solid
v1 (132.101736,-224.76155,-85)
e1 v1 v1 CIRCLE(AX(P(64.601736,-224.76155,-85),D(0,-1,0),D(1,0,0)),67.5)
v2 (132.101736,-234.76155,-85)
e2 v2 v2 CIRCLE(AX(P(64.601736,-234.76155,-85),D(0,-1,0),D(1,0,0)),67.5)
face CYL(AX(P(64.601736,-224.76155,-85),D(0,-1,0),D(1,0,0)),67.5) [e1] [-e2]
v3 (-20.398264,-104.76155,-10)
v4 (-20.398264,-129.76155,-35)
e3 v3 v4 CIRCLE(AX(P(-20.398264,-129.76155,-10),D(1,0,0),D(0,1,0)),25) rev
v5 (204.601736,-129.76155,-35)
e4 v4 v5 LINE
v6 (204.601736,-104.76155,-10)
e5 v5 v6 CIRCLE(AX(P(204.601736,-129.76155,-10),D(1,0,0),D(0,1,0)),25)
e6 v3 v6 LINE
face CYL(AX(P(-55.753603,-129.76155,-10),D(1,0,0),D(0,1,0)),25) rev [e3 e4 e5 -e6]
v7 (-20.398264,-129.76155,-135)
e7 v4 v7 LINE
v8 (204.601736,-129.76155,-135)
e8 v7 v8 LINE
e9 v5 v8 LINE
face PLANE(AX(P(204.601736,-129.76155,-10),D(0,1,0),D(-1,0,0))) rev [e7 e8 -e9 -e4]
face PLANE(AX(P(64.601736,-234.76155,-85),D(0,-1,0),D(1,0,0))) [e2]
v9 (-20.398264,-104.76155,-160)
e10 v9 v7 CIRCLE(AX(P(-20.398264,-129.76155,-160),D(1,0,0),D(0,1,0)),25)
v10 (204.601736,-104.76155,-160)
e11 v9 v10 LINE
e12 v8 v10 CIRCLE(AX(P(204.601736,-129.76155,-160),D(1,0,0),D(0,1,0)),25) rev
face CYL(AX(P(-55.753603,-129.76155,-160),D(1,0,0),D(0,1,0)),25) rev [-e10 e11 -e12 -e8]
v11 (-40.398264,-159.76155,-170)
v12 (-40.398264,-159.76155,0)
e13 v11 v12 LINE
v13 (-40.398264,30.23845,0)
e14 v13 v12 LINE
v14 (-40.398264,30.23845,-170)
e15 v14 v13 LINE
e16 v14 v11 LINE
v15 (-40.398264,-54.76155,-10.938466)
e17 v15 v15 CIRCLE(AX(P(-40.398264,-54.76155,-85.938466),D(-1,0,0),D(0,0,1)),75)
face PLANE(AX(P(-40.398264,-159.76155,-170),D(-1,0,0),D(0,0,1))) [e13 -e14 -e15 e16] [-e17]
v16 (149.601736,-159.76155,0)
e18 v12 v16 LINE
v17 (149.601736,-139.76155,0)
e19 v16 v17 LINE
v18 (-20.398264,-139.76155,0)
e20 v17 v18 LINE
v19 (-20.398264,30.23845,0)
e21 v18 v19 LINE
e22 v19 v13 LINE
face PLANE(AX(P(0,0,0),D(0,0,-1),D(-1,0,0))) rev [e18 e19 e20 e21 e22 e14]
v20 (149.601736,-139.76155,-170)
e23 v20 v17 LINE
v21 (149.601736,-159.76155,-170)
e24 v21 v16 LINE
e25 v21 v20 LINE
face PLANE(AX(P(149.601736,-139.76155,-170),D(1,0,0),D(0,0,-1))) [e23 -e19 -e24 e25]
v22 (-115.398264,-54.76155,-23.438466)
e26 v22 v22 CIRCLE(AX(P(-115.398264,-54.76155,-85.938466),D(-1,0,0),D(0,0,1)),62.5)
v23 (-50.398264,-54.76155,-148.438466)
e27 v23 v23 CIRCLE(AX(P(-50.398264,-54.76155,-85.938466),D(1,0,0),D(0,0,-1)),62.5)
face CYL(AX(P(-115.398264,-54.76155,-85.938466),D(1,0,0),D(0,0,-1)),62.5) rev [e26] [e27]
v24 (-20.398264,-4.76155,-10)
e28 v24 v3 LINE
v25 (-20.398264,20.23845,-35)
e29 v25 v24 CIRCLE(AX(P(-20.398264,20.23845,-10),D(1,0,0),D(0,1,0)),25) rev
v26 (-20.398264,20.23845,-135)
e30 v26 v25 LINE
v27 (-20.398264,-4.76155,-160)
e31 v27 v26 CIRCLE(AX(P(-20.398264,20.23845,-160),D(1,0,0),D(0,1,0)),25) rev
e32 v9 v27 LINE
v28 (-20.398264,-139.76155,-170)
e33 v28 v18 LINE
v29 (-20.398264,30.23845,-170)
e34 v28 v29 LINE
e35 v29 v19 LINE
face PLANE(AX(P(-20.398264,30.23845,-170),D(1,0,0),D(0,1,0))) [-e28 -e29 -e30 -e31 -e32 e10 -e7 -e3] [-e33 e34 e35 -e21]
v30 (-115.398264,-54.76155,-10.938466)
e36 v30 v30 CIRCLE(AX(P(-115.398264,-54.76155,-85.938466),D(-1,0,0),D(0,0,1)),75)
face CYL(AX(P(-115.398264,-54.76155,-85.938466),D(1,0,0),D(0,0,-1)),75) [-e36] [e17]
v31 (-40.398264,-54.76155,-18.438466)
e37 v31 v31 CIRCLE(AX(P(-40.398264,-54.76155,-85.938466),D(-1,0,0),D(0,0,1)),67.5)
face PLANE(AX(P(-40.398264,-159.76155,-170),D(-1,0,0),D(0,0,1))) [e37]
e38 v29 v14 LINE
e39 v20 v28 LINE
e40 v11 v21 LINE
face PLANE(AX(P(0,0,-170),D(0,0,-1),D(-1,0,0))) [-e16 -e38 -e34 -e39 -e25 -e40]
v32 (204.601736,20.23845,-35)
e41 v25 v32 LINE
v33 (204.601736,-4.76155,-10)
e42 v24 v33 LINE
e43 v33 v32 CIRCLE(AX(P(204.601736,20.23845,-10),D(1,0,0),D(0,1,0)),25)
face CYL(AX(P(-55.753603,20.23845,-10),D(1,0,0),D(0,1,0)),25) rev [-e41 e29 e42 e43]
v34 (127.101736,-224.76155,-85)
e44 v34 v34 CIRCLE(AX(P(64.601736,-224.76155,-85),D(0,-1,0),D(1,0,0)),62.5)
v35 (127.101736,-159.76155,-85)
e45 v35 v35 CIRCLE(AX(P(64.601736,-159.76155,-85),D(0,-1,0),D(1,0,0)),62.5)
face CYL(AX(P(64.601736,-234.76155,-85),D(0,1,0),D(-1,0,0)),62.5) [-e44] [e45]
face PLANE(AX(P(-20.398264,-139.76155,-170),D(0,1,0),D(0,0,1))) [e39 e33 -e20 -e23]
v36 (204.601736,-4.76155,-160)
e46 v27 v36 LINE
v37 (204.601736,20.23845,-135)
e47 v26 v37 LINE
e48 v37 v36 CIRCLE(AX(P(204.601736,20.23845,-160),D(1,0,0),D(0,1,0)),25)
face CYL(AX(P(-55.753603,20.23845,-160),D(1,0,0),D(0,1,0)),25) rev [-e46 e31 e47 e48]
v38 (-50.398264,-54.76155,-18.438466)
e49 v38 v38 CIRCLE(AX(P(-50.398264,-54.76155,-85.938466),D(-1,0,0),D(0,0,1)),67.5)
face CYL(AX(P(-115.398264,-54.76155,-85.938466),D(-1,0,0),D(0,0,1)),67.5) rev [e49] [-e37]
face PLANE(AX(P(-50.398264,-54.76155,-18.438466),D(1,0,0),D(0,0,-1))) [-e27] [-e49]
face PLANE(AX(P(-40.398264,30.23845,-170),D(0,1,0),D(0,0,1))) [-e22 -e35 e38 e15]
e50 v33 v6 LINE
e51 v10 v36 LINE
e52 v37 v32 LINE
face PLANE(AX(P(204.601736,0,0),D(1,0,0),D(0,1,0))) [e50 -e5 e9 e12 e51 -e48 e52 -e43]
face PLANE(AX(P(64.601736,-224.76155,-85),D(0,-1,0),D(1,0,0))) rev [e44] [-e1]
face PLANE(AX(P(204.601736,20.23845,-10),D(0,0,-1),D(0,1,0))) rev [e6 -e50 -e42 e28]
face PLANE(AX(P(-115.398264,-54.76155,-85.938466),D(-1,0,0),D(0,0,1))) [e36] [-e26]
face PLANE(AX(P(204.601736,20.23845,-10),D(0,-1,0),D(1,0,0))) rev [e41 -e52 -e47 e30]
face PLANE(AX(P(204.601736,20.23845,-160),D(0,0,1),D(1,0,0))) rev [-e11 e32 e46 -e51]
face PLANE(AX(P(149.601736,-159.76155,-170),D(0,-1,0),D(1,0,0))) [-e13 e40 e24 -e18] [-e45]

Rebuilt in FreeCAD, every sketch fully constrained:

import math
import FreeCAD as App
import Part
import Sketcher
Q = App.Units.Quantity

doc = App.newDocument("Part")
body = doc.addObject("PartDesign::Body", "Body")

# Sketch on XY plane
sketch1 = doc.addObject("Sketcher::SketchObject", "Sketch")
body.addObject(sketch1)
sketch1.AttachmentSupport = (doc.XY_Plane, [""])
sketch1.MapMode = "FlatFace"
sketch1.addGeometry([
    Part.LineSegment(App.Vector(-20, 30, 0), App.Vector(-40, 30, 0)),  # 0
    Part.LineSegment(App.Vector(-40, 30, 0), App.Vector(-40, -160, 0)),  # 1
    Part.LineSegment(App.Vector(-40, -160, 0), App.Vector(150, -160, 0)),  # 2
    Part.LineSegment(App.Vector(150, -160, 0), App.Vector(150, -140, 0)),  # 3
    Part.LineSegment(App.Vector(150, -140, 0), App.Vector(-20, -140, 0)),  # 4
    Part.LineSegment(App.Vector(-20, -140, 0), App.Vector(-20, 30, 0)),  # 5
], False)
sketch1.addConstraint([
    Sketcher.Constraint("Coincident", 0, 2, 1, 1),
    Sketcher.Constraint("Coincident", 1, 2, 2, 1),
    Sketcher.Constraint("Coincident", 2, 2, 3, 1),
    Sketcher.Constraint("Coincident", 3, 2, 4, 1),
    Sketcher.Constraint("Coincident", 4, 2, 5, 1),
    Sketcher.Constraint("Coincident", 5, 2, 0, 1),
    Sketcher.Constraint("Horizontal", 0),
    Sketcher.Constraint("Vertical", 1),
    Sketcher.Constraint("Horizontal", 2),
    Sketcher.Constraint("Vertical", 3),
    Sketcher.Constraint("Horizontal", 4),
    Sketcher.Constraint("Vertical", 5),
    Sketcher.Constraint("Equal", 2, 1),
    Sketcher.Constraint("Equal", 0, 3),
    Sketcher.Constraint("DistanceX", 0, 2, 0, 1, Q("20 mm")),
    Sketcher.Constraint("DistanceX", 2, 1, 2, 2, Q("190 mm")),
    Sketcher.Constraint("DistanceY", -1, 1, 0, 2, Q("30.23845 mm")),
    Sketcher.Constraint("DistanceX", 0, 2, -1, 1, Q("40.398264 mm")),
])
pad1 = doc.addObject("PartDesign::Pad", "Pad")
body.addObject(pad1)
pad1.Profile = sketch1
pad1.Length = 170
pad1.Reversed = True

# Sketch on YZ plane
sketch2 = doc.addObject("Sketcher::SketchObject", "Sketch001")
body.addObject(sketch2)
sketch2.AttachmentSupport = (doc.YZ_Plane, [""])
sketch2.MapMode = "FlatFace"
sketch2.AttachmentOffset = App.Placement(App.Vector(0, 0, -40.398264), App.Rotation())
sketch2.addGeometry([
    Part.Circle(App.Vector(-55, -86, 0), App.Vector(0, 0, 1), 75),
    Part.Circle(App.Vector(-55, -86, 0), App.Vector(0, 0, 1), 62),
], False)
sketch2.addConstraint([
    Sketcher.Constraint("Coincident", 1, 3, 0, 3),
    Sketcher.Constraint("Diameter", 0, Q("150 mm")),
    Sketcher.Constraint("Diameter", 1, Q("125 mm")),
    Sketcher.Constraint("DistanceX", 0, 3, -1, 1, Q("54.76155 mm")),
    Sketcher.Constraint("DistanceY", 0, 3, -1, 1, Q("85.938466 mm")),
])
pad2 = doc.addObject("PartDesign::Pad", "Pad001")
body.addObject(pad2)
pad2.Profile = sketch2
pad2.Length = 75
pad2.Reversed = True

# Sketch on YZ plane
sketch3 = doc.addObject("Sketcher::SketchObject", "Sketch002")
body.addObject(sketch3)
sketch3.AttachmentSupport = (doc.YZ_Plane, [""])
sketch3.MapMode = "FlatFace"
sketch3.AttachmentOffset = App.Placement(App.Vector(0, 0, -20.398264), App.Rotation())
sketch3.addGeometry([
    Part.LineSegment(App.Vector(20, -10, 0), App.Vector(-130, -10, 0)),
    Part.LineSegment(App.Vector(-130, -10, 0), App.Vector(-130, -160, 0)),
    Part.LineSegment(App.Vector(-130, -160, 0), App.Vector(20, -160, 0)),
    Part.LineSegment(App.Vector(20, -160, 0), App.Vector(20, -10, 0)),
], False)
sketch3.addConstraint([
    Sketcher.Constraint("Coincident", 0, 2, 1, 1),
    Sketcher.Constraint("Coincident", 1, 2, 2, 1),
    Sketcher.Constraint("Coincident", 2, 2, 3, 1),
    Sketcher.Constraint("Coincident", 3, 2, 0, 1),
    Sketcher.Constraint("Horizontal", 0),
    Sketcher.Constraint("Vertical", 1),
    Sketcher.Constraint("Horizontal", 2),
    Sketcher.Constraint("Vertical", 3),
    Sketcher.Constraint("Equal", 2, 1),
    Sketcher.Constraint("DistanceX", 0, 2, 0, 1, Q("150 mm")),
    Sketcher.Constraint("DistanceY", 0, 2, -1, 1, Q("10 mm")),
    Sketcher.Constraint("DistanceX", 0, 2, -1, 1, Q("129.76155 mm")),
])
pad3 = doc.addObject("PartDesign::Pad", "Pad002")
body.addObject(pad3)
pad3.Profile = sketch3
pad3.Length = 225

# Sketch on YZ plane
sketch4 = doc.addObject("Sketcher::SketchObject", "Sketch003")
body.addObject(sketch4)
sketch4.AttachmentSupport = (doc.YZ_Plane, [""])
sketch4.MapMode = "FlatFace"
sketch4.AttachmentOffset = App.Placement(App.Vector(0, 0, 204.601736), App.Rotation())
sketch4.addGeometry([
    Part.LineSegment(App.Vector(20, -35, 0), App.Vector(20, -10, 0)),  # 0
    Part.LineSegment(App.Vector(20, -10, 0), App.Vector(-5, -10, 0)),  # 1
    Part.ArcOfCircle(Part.Circle(App.Vector(20, -10, 0), App.Vector(0, 0, 1), 25), math.radians(180), math.radians(270)),  # 2
    Part.ArcOfCircle(Part.Circle(App.Vector(-130, -10, 0), App.Vector(0, 0, 1), 25), math.radians(-90), math.radians(0)),  # 3
    Part.LineSegment(App.Vector(-105, -10, 0), App.Vector(-130, -10, 0)),  # 4
    Part.LineSegment(App.Vector(-130, -10, 0), App.Vector(-130, -35, 0)),  # 5
    Part.ArcOfCircle(Part.Circle(App.Vector(-130, -160, 0), App.Vector(0, 0, 1), 25), math.radians(0), math.radians(90)),  # 6
    Part.LineSegment(App.Vector(-130, -135, 0), App.Vector(-130, -160, 0)),  # 7
    Part.LineSegment(App.Vector(-130, -160, 0), App.Vector(-105, -160, 0)),  # 8
    Part.LineSegment(App.Vector(20, -160, 0), App.Vector(20, -135, 0)),  # 9
    Part.ArcOfCircle(Part.Circle(App.Vector(20, -160, 0), App.Vector(0, 0, 1), 25), math.radians(90), math.radians(180)),  # 10
    Part.LineSegment(App.Vector(-5, -160, 0), App.Vector(20, -160, 0)),  # 11
], False)
sketch4.addConstraint([
    Sketcher.Constraint("Coincident", 0, 2, 1, 1),
    Sketcher.Constraint("Coincident", 1, 2, 2, 1),
    Sketcher.Constraint("Coincident", 2, 2, 0, 1),
    Sketcher.Constraint("Coincident", 3, 2, 4, 1),
    Sketcher.Constraint("Coincident", 4, 2, 5, 1),
    Sketcher.Constraint("Coincident", 5, 2, 3, 1),
    Sketcher.Constraint("Coincident", 6, 2, 7, 1),
    Sketcher.Constraint("Coincident", 7, 2, 8, 1),
    Sketcher.Constraint("Coincident", 8, 2, 6, 1),
    Sketcher.Constraint("Coincident", 9, 2, 10, 1),
    Sketcher.Constraint("Coincident", 10, 2, 11, 1),
    Sketcher.Constraint("Coincident", 11, 2, 9, 1),
    Sketcher.Constraint("Vertical", 0),
    Sketcher.Constraint("Horizontal", 1),
    Sketcher.Constraint("Horizontal", 4),
    Sketcher.Constraint("Vertical", 5),
    Sketcher.Constraint("Vertical", 7),
    Sketcher.Constraint("Horizontal", 8),
    Sketcher.Constraint("Vertical", 9),
    Sketcher.Constraint("Horizontal", 11),
    Sketcher.Constraint("Coincident", 0, 2, 2, 3),
    Sketcher.Constraint("Coincident", 4, 2, 3, 3),
    Sketcher.Constraint("Coincident", 7, 2, 6, 3),
    Sketcher.Constraint("Coincident", 11, 2, 10, 3),
    Sketcher.Constraint("Equal", 2, 3),
    Sketcher.Constraint("Equal", 3, 6),
    Sketcher.Constraint("Equal", 6, 10),
    Sketcher.Constraint("Horizontal", 2, 3, 3, 3),
    Sketcher.Constraint("Horizontal", 6, 3, 10, 3),
    Sketcher.Constraint("Vertical", 3, 3, 6, 3),
    Sketcher.Constraint("Vertical", 2, 3, 10, 3),
    Sketcher.Constraint("Radius", 2, Q("25 mm")),
    Sketcher.Constraint("DistanceY", 2, 3, -1, 1, Q("10 mm")),
    Sketcher.Constraint("DistanceY", 6, 3, -1, 1, Q("160 mm")),
    Sketcher.Constraint("DistanceX", 3, 3, 2, 3, Q("150 mm")),
    Sketcher.Constraint("DistanceX", -1, 1, 2, 3, Q("20.23845 mm")),
])
pocket1 = doc.addObject("PartDesign::Pocket", "Pocket")
body.addObject(pocket1)
pocket1.Profile = sketch4
pocket1.Length = 225

# Sketch on XZ plane
sketch5 = doc.addObject("Sketcher::SketchObject", "Sketch004")
body.addObject(sketch5)
sketch5.AttachmentSupport = (doc.XZ_Plane, [""])
sketch5.MapMode = "FlatFace"
sketch5.AttachmentOffset = App.Placement(App.Vector(0, 0, 159.76155), App.Rotation())
sketch5.addGeometry(Part.Circle(App.Vector(65, -85, 0), App.Vector(0, 0, 1), 62), False)
sketch5.addConstraint([
    Sketcher.Constraint("Diameter", 0, Q("125 mm")),
    Sketcher.Constraint("DistanceY", 0, 3, -1, 1, Q("85 mm")),
    Sketcher.Constraint("DistanceX", -1, 1, 0, 3, Q("64.601736 mm")),
])
pad4 = doc.addObject("PartDesign::Pad", "Pad003")
body.addObject(pad4)
pad4.Profile = sketch5
pad4.Length = 75

# Sketch on XZ plane
sketch6 = doc.addObject("Sketcher::SketchObject", "Sketch005")
body.addObject(sketch6)
sketch6.AttachmentSupport = (doc.XZ_Plane, [""])
sketch6.MapMode = "FlatFace"
sketch6.AttachmentOffset = App.Placement(App.Vector(0, 0, 224.76155), App.Rotation())
sketch6.addGeometry([
    Part.Circle(App.Vector(65, -85, 0), App.Vector(0, 0, 1), 68),
    Part.Circle(App.Vector(65, -85, 0), App.Vector(0, 0, 1), 62),
], False)
sketch6.addConstraint([
    Sketcher.Constraint("Coincident", 1, 3, 0, 3),
    Sketcher.Constraint("Diameter", 0, Q("135 mm")),
    Sketcher.Constraint("Diameter", 1, Q("125 mm")),
    Sketcher.Constraint("DistanceY", 0, 3, -1, 1, Q("85 mm")),
    Sketcher.Constraint("DistanceX", -1, 1, 0, 3, Q("64.601736 mm")),
])
pad5 = doc.addObject("PartDesign::Pad", "Pad004")
body.addObject(pad5)
pad5.Profile = sketch6
pad5.Length = 10

# Sketch on XZ plane
sketch7 = doc.addObject("Sketcher::SketchObject", "Sketch006")
body.addObject(sketch7)
sketch7.AttachmentSupport = (doc.XZ_Plane, [""])
sketch7.MapMode = "FlatFace"
sketch7.AttachmentOffset = App.Placement(App.Vector(0, 0, 54.76155), App.Rotation())
sketch7.addGeometry([
    Part.LineSegment(App.Vector(-50, -18, 0), App.Vector(-50, -31, 0)),
    Part.LineSegment(App.Vector(-50, -31, 0), App.Vector(-40, -31, 0)),
    Part.LineSegment(App.Vector(-40, -31, 0), App.Vector(-40, -18, 0)),
    Part.LineSegment(App.Vector(-40, -18, 0), App.Vector(-50, -18, 0)),
], False)
sketch7.addGeometry(Part.LineSegment(App.Vector(-50, -86, 0), App.Vector(-40, -86, 0)), True)  # axis
sketch7.addConstraint([
    Sketcher.Constraint("Coincident", 0, 2, 1, 1),
    Sketcher.Constraint("Coincident", 1, 2, 2, 1),
    Sketcher.Constraint("Coincident", 2, 2, 3, 1),
    Sketcher.Constraint("Coincident", 3, 2, 0, 1),
    Sketcher.Constraint("Vertical", 0),
    Sketcher.Constraint("Horizontal", 1),
    Sketcher.Constraint("Vertical", 2),
    Sketcher.Constraint("Horizontal", 3),
    Sketcher.Constraint("Horizontal", 4),
    Sketcher.Constraint("Vertical", 3, 2, 4, 1),
    Sketcher.Constraint("Vertical", 2, 2, 4, 2),
    Sketcher.Constraint("DistanceX", 1, 1, 1, 2, Q("10 mm")),
    Sketcher.Constraint("DistanceY", 4, 1, 3, 2, Q("67.5 mm")),
    Sketcher.Constraint("DistanceY", 0, 2, 0, 1, Q("12.412746 mm")),
    Sketcher.Constraint("DistanceX", 0, 2, -1, 1, Q("50.398264 mm")),
    Sketcher.Constraint("DistanceY", 0, 2, -1, 1, Q("30.851212 mm")),
])
groove = doc.addObject("PartDesign::Groove", "Groove")
body.addObject(groove)
groove.Profile = sketch7
groove.ReferenceAxis = (sketch7, ["Axis0"])
groove.Angle = 360

doc.recompute()
